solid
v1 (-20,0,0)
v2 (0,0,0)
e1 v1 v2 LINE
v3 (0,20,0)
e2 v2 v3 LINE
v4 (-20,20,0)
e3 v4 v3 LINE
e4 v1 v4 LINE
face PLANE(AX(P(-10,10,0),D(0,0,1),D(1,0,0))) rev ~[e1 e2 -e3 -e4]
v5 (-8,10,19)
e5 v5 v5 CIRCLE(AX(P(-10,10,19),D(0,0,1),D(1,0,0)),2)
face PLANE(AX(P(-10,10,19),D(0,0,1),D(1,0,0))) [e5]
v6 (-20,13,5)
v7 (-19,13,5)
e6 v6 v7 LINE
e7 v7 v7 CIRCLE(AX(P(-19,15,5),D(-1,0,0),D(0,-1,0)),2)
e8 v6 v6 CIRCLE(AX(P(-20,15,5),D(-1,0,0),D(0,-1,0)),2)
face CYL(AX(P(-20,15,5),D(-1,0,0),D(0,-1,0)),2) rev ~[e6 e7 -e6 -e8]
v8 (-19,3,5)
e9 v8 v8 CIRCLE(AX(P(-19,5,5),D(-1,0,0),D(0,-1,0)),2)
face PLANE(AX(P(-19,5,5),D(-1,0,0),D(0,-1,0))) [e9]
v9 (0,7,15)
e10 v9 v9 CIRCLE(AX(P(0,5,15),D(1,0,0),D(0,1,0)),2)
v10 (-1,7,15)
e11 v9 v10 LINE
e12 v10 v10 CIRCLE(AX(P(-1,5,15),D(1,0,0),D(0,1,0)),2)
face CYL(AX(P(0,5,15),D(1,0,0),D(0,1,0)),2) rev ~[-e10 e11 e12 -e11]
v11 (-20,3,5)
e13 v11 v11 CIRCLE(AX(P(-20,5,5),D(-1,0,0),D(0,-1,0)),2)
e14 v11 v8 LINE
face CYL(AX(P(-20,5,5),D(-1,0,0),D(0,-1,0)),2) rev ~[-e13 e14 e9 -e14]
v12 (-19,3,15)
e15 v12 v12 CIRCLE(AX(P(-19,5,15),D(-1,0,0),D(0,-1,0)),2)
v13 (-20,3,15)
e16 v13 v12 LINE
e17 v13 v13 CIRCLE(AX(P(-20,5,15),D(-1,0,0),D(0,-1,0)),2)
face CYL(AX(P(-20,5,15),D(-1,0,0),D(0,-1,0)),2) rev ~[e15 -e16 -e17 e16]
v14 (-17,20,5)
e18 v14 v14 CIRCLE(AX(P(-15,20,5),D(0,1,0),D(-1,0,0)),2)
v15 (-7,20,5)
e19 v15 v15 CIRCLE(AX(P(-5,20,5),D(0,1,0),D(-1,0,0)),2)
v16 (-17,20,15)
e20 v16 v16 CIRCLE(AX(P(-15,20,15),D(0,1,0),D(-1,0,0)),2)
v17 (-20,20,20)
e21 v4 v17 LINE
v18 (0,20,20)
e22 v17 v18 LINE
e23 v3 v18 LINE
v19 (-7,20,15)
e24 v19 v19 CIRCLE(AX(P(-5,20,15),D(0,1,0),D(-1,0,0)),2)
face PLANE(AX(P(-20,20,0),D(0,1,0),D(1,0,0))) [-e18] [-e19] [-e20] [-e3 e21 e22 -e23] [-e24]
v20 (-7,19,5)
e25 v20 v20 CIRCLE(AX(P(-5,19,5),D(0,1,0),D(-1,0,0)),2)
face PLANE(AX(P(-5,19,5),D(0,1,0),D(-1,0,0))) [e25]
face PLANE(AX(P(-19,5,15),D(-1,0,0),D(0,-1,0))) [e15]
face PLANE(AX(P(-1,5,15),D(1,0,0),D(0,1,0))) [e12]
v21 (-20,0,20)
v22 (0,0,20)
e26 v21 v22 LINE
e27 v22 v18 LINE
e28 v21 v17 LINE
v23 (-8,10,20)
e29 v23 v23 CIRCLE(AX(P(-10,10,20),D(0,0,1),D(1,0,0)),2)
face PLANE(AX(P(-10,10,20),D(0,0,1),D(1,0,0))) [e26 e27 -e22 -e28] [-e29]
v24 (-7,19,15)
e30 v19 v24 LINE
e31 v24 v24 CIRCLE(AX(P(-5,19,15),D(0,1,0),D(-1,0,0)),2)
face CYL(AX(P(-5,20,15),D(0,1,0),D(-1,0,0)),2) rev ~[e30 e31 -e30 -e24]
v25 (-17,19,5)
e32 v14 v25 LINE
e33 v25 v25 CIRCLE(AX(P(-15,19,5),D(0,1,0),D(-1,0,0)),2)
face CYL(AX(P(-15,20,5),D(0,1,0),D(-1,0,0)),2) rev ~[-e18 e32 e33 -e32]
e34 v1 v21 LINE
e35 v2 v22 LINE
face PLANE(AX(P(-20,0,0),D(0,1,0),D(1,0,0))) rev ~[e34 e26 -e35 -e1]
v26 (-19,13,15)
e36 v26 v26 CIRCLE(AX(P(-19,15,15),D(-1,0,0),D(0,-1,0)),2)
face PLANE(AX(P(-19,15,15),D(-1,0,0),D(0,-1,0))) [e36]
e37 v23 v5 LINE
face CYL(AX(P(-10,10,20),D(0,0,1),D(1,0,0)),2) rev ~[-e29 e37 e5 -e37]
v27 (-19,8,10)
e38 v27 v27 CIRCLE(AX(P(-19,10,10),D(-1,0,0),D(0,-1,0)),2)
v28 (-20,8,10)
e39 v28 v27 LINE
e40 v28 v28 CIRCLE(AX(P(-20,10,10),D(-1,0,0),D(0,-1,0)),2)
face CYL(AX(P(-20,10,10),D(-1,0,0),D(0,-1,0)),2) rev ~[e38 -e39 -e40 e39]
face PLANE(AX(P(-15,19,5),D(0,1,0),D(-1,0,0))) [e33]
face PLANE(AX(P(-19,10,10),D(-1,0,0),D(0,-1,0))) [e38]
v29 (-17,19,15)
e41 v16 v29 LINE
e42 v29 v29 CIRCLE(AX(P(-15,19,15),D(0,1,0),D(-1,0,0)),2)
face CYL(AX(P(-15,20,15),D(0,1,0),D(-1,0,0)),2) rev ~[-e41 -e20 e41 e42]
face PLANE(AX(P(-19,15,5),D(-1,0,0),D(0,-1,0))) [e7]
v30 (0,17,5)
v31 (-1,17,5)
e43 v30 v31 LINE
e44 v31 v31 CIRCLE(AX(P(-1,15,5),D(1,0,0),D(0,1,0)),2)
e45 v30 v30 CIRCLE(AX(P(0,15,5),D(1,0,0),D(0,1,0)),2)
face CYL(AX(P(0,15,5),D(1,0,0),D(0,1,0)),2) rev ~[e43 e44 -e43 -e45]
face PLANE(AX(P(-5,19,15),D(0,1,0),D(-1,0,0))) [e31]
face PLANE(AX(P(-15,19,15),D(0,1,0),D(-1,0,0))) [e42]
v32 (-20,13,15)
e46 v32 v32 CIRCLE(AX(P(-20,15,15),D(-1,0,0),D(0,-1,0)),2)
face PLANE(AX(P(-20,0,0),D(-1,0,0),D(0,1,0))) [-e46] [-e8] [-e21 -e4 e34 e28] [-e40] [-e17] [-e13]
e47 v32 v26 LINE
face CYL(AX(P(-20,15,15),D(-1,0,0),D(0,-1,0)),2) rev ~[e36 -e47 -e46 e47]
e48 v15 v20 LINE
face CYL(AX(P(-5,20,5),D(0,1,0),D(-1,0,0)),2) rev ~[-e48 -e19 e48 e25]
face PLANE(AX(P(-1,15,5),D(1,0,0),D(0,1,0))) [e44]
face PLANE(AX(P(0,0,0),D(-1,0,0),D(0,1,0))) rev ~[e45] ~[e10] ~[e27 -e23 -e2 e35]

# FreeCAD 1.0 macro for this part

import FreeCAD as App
import Part
import Sketcher

doc = App.newDocument("Part")
body = doc.addObject("PartDesign::Body", "Body")

# Sketch on XY plane
sketch1 = body.newObject("Sketcher::SketchObject", "Sketch")
sketch1.AttachmentSupport = (doc.getObject("XY_Plane"), [""])
sketch1.MapMode = "FlatFace"
sketch1.addGeometry([
    Part.LineSegment(App.Vector(-20, 20, 0), App.Vector(-20, 0, 0)),
    Part.LineSegment(App.Vector(-20, 0, 0), App.Vector(0, 0, 0)),
    Part.LineSegment(App.Vector(0, 0, 0), App.Vector(0, 20, 0)),
    Part.LineSegment(App.Vector(0, 20, 0), App.Vector(-20, 20, 0)),
], False)
sketch1.addConstraint([
    Sketcher.Constraint("Coincident", 0, 2, 1, 1),
    Sketcher.Constraint("Coincident", 1, 2, 2, 1),
    Sketcher.Constraint("Coincident", 2, 2, 3, 1),
    Sketcher.Constraint("Coincident", 3, 2, 0, 1),
    Sketcher.Constraint("Vertical", 0),
    Sketcher.Constraint("Horizontal", 1),
    Sketcher.Constraint("Vertical", 2),
    Sketcher.Constraint("Horizontal", 3),
    Sketcher.Constraint("Coincident", 1, 2, -1, 1),
    Sketcher.Constraint("Equal", 3, 0),
    Sketcher.Constraint("DistanceX", 1, 1, 1, 2, 20.0),
])
pad1 = body.newObject("PartDesign::Pad", "Pad")
pad1.Profile = sketch1
pad1.Length = 20

# Sketch on XY plane
sketch2 = body.newObject("Sketcher::SketchObject", "Sketch001")
sketch2.AttachmentSupport = (doc.getObject("XY_Plane"), [""])
sketch2.MapMode = "FlatFace"
sketch2.AttachmentOffset = App.Placement(App.Vector(0, 0, 20), App.Rotation())
sketch2.addGeometry(Part.Circle(App.Vector(-10, 10, 0), App.Vector(0, 0, 1), 2), False)
sketch2.addConstraint([
    Sketcher.Constraint("Diameter", 0, 4.0),
    Sketcher.Constraint("DistanceX", 0, 3, -1, 1, 10.0),
    Sketcher.Constraint("DistanceY", -1, 1, 0, 3, 10.0),
])
pocket1 = body.newObject("PartDesign::Pocket", "Pocket")
pocket1.Profile = sketch2
pocket1.Length = 1

# Sketch on YZ plane
sketch3 = body.newObject("Sketcher::SketchObject", "Sketch002")
sketch3.AttachmentSupport = (doc.getObject("YZ_Plane"), [""])
sketch3.MapMode = "FlatFace"
sketch3.addGeometry([
    Part.Circle(App.Vector(15, 5, 0), App.Vector(0, 0, 1), 2),
    Part.Circle(App.Vector(5, 15, 0), App.Vector(0, 0, 1), 2),
], False)
sketch3.addConstraint([
    Sketcher.Constraint("Equal", 0, 1),
    Sketcher.Constraint("Diameter", 0, 4.0),
    Sketcher.Constraint("DistanceX", -1, 1, 0, 3, 15.0),
    Sketcher.Constraint("DistanceY", -1, 1, 0, 3, 5.0),
    Sketcher.Constraint("DistanceX", -1, 1, 1, 3, 5.0),
    Sketcher.Constraint("DistanceY", -1, 1, 1, 3, 15.0),
])
pocket2 = body.newObject("PartDesign::Pocket", "Pocket001")
pocket2.Profile = sketch3
pocket2.Length = 1

# Sketch on XZ plane
sketch4 = body.newObject("Sketcher::SketchObject", "Sketch003")
sketch4.AttachmentSupport = (doc.getObject("XZ_Plane"), [""])
sketch4.MapMode = "FlatFace"
sketch4.AttachmentOffset = App.Placement(App.Vector(0, 0, -20), App.Rotation())
sketch4.addGeometry([
    Part.Circle(App.Vector(-15, 5, 0), App.Vector(0, 0, 1), 2),
    Part.Circle(App.Vector(-5, 5, 0), App.Vector(0, 0, 1), 2),
    Part.Circle(App.Vector(-5, 15, 0), App.Vector(0, 0, 1), 2),
    Part.Circle(App.Vector(-15, 15, 0), App.Vector(0, 0, 1), 2),
], False)
sketch4.addConstraint([
    Sketcher.Constraint("Equal", 0, 1),
    Sketcher.Constraint("Equal", 1, 2),
    Sketcher.Constraint("Equal", 2, 3),
    Sketcher.Constraint("Horizontal", 0, 3, 1, 3),
    Sketcher.Constraint("Horizontal", 2, 3, 3, 3),
    Sketcher.Constraint("Vertical", 1, 3, 2, 3),
    Sketcher.Constraint("Vertical", 0, 3, 3, 3),
    Sketcher.Constraint("Diameter", 0, 4.0),
    Sketcher.Constraint("DistanceX", 0, 3, -1, 1, 15.0),
    Sketcher.Constraint("DistanceY", -1, 1, 0, 3, 5.0),
    Sketcher.Constraint("DistanceX", 1, 3, -1, 1, 5.0),
    Sketcher.Constraint("DistanceY", -1, 1, 2, 3, 15.0),
])
pocket3 = body.newObject("PartDesign::Pocket", "Pocket002")
pocket3.Profile = sketch4
pocket3.Length = 1
pocket3.Reversed = True

# Sketch on YZ plane
sketch5 = body.newObject("Sketcher::SketchObject", "Sketch004")
sketch5.AttachmentSupport = (doc.getObject("YZ_Plane"), [""])
sketch5.MapMode = "FlatFace"
sketch5.AttachmentOffset = App.Placement(App.Vector(0, 0, -20), App.Rotation())
sketch5.addGeometry([
    Part.Circle(App.Vector(10, 10, 0), App.Vector(0, 0, 1), 2),  # 0
    Part.Circle(App.Vector(5, 15, 0), App.Vector(0, 0, 1), 2),  # 1
    Part.Circle(App.Vector(5, 5, 0), App.Vector(0, 0, 1), 2),  # 2
    Part.Circle(App.Vector(15, 5, 0), App.Vector(0, 0, 1), 2),  # 3
    Part.Circle(App.Vector(15, 15, 0), App.Vector(0, 0, 1), 2),  # 4
], False)
sketch5.addConstraint([
    Sketcher.Constraint("Equal", 0, 1),
    Sketcher.Constraint("Equal", 1, 2),
    Sketcher.Constraint("Equal", 2, 3),
    Sketcher.Constraint("Equal", 3, 4),
    Sketcher.Constraint("Horizontal", 2, 3, 3, 3),
    Sketcher.Constraint("Horizontal", 1, 3, 4, 3),
    Sketcher.Constraint("Vertical", 1, 3, 2, 3),
    Sketcher.Constraint("Vertical", 3, 3, 4, 3),
    Sketcher.Constraint("Diameter", 0, 4.0),
    Sketcher.Constraint("DistanceX", -1, 1, 0, 3, 10.0),
    Sketcher.Constraint("DistanceY", -1, 1, 0, 3, 10.0),
    Sketcher.Constraint("DistanceX", -1, 1, 1, 3, 5.0),
    Sketcher.Constraint("DistanceY", -1, 1, 1, 3, 15.0),
    Sketcher.Constraint("DistanceY", -1, 1, 2, 3, 5.0),
    Sketcher.Constraint("DistanceX", -1, 1, 3, 3, 15.0),
])
pocket4 = body.newObject("PartDesign::Pocket", "Pocket003")
pocket4.Profile = sketch5
pocket4.Length = 1
pocket4.Reversed = True

doc.recompute()
